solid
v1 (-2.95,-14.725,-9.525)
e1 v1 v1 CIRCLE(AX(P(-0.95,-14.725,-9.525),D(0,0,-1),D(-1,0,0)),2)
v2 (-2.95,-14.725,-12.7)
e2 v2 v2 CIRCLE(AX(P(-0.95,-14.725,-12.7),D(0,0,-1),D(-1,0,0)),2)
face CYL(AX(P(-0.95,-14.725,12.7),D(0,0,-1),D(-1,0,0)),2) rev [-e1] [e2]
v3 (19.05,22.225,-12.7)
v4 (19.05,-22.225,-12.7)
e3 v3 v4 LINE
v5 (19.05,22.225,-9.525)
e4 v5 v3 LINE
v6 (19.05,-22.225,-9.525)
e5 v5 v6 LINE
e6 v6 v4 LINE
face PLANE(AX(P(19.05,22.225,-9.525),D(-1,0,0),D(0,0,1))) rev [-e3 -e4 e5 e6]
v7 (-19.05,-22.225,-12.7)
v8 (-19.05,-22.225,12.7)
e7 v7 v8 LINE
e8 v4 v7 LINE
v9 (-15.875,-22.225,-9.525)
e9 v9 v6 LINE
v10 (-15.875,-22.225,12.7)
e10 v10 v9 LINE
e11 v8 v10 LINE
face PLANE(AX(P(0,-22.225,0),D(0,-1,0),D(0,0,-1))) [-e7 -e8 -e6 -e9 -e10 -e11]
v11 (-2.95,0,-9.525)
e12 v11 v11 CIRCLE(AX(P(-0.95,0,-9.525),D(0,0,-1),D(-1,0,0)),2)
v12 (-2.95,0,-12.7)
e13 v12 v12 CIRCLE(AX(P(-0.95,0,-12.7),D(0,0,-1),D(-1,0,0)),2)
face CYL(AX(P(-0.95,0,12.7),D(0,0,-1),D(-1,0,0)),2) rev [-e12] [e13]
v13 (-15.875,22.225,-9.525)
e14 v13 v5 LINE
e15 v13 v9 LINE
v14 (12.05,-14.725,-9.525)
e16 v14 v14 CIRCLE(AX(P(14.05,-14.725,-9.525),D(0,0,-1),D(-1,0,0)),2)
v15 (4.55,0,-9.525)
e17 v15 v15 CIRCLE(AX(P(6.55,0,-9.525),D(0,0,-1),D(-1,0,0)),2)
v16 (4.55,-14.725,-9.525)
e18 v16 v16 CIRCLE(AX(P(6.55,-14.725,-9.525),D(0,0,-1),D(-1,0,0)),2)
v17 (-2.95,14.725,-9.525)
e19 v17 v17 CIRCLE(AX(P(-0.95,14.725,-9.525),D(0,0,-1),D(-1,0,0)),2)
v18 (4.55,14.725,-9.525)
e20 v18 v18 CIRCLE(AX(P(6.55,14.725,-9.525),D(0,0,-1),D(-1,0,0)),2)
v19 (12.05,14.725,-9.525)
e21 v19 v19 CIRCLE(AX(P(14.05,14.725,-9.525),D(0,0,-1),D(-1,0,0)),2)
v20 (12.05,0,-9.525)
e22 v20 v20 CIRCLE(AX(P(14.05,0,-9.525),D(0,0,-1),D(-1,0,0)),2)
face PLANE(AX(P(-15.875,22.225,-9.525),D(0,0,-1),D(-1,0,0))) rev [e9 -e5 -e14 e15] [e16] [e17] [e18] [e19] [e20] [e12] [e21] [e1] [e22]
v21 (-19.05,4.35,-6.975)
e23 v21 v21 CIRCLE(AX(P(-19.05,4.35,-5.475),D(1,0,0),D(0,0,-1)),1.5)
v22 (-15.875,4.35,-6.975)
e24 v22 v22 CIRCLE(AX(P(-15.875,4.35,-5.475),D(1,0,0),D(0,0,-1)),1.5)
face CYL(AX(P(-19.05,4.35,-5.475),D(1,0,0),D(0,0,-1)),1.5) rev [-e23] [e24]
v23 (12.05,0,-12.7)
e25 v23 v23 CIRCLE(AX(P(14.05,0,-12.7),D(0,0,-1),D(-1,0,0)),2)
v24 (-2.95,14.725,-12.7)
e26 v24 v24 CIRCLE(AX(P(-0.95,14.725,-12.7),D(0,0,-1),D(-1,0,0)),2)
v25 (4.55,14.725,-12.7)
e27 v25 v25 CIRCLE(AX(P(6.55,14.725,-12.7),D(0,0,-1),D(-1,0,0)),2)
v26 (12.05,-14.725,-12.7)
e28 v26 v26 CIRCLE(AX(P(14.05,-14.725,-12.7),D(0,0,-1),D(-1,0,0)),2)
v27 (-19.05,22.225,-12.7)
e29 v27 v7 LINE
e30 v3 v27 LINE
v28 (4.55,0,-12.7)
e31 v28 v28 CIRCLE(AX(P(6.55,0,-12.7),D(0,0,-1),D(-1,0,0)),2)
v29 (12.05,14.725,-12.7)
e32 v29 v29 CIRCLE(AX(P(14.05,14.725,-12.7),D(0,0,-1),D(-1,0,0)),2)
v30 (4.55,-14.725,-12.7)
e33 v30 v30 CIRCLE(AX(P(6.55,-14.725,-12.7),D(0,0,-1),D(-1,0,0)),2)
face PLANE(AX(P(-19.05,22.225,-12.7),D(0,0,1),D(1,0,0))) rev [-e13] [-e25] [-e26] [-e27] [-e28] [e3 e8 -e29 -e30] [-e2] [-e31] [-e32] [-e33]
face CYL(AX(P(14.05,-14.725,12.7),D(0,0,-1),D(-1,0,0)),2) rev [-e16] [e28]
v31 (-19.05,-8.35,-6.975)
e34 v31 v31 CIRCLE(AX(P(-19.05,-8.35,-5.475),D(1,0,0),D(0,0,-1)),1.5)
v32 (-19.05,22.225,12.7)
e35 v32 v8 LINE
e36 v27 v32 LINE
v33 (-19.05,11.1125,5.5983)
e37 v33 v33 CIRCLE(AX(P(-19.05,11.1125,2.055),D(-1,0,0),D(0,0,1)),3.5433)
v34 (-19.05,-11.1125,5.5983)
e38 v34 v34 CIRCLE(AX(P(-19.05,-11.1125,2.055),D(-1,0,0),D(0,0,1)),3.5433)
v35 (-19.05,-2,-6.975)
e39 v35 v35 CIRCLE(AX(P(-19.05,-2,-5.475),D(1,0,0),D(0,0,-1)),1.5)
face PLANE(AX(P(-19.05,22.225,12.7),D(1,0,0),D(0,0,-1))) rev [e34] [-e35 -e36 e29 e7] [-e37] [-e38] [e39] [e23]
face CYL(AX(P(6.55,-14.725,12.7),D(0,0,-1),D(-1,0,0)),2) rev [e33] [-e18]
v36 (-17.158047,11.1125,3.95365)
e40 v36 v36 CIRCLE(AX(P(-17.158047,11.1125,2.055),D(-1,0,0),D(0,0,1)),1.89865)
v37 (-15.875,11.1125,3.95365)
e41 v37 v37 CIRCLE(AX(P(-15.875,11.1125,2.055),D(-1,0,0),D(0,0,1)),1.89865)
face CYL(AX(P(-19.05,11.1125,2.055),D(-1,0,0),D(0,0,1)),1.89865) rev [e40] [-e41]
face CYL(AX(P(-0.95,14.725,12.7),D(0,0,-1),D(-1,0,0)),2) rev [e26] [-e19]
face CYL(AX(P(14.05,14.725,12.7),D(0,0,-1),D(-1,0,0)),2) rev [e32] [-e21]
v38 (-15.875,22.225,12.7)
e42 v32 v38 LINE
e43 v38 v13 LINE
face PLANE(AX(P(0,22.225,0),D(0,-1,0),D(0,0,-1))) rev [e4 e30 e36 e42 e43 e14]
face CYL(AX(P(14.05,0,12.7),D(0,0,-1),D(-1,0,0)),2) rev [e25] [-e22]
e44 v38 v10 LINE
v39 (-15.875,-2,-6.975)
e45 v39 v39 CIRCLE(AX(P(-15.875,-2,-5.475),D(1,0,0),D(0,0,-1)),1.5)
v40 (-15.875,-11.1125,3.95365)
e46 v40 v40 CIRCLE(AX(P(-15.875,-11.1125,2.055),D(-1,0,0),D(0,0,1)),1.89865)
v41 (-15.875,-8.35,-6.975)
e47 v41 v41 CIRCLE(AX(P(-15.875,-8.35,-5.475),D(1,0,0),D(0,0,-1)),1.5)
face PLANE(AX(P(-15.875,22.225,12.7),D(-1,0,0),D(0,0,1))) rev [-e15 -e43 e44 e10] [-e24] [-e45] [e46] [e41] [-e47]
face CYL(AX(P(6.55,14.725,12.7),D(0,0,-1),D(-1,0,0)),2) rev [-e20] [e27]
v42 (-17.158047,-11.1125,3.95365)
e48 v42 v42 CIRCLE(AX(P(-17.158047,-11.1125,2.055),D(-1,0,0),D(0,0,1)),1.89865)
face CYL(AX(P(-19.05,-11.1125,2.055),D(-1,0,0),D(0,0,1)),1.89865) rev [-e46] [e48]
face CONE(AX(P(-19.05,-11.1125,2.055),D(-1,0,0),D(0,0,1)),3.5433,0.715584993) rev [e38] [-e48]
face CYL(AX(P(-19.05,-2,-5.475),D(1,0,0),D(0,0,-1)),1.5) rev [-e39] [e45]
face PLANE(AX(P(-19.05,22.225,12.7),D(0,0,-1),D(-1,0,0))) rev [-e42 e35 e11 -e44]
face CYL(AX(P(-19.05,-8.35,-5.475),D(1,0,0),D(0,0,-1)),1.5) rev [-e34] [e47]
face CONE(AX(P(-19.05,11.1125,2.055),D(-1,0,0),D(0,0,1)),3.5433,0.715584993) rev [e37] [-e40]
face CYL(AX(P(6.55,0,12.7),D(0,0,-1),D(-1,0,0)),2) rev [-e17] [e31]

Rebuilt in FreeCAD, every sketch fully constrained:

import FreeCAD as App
import Part
import Sketcher
Q = App.Units.Quantity


def add_polygon(sketch, points):
    """Adds a closed chain of lines whose ends are joined by coincident constraints."""
    first, n = sketch.GeometryCount, len(points)
    for a, b in zip(points, points[1:] + points[:1]):
        sketch.addGeometry(Part.LineSegment(App.Vector(*a, 0), App.Vector(*b, 0)), False)
    for i in range(n):
        sketch.addConstraint(Sketcher.Constraint("Coincident", first + i, 2, first + (i + 1) % n, 1))

doc = App.newDocument("Part")
body = doc.addObject("PartDesign::Body", "Body")

sketch1 = doc.addObject("Sketcher::SketchObject", "Sketch")
body.addObject(sketch1)
sketch1.AttachmentSupport = (doc.XZ_Plane, [""])
sketch1.MapMode = "FlatFace"
add_polygon(sketch1, [(-19.05, 12.7), (-15.875, 12.7), (-15.875, -9.525), (19.05, -9.525), (19.05, -12.7), (-19.05, -12.7)])
sketch1.addConstraint(Sketcher.Constraint("Horizontal", 0))
sketch1.addConstraint(Sketcher.Constraint("Vertical", 1))
sketch1.addConstraint(Sketcher.Constraint("Horizontal", 2))
sketch1.addConstraint(Sketcher.Constraint("Vertical", 3))
sketch1.addConstraint(Sketcher.Constraint("Horizontal", 4))
sketch1.addConstraint(Sketcher.Constraint("Vertical", 5))
sketch1.addConstraint(Sketcher.Constraint("Symmetric", 3, 2, 5, 2, -1, 1))
sketch1.addConstraint(Sketcher.Constraint("Equal", 0, 3))
sketch1.addConstraint(Sketcher.Constraint("DistanceY", 5, 1, 5, 2, Q("1 in")))
sketch1.addConstraint(Sketcher.Constraint("DistanceX", 4, 2, 4, 1, Q("1.5 in")))
sketch1.addConstraint(Sketcher.Constraint("DistanceX", 0, 1, 0, 2, Q("0.125 in")))
pad1 = doc.addObject("PartDesign::Pad", "Pad")
body.addObject(pad1)
pad1.Profile = sketch1
pad1.Length = Q("1.75 in")
pad1.Midplane = True

sketch2 = doc.addObject("Sketcher::SketchObject", "Sketch001")
body.addObject(sketch2)
sketch2.AttachmentSupport = (doc.YZ_Plane, [""])
sketch2.MapMode = "FlatFace"
sketch2.AttachmentOffset = App.Placement(App.Vector(0, 0, -0.75 * 25.4), App.Rotation())
sketch2.addGeometry(Part.Circle(App.Vector(11.1125, 2.055, 0), App.Vector(0, 0, 1), 1.89865), False)
sketch2.addConstraint(Sketcher.Constraint("Diameter", 0, Q("0.1495 in")))
sketch2.addConstraint(Sketcher.Constraint("DistanceX", -1, 1, 0, 3, Q("0.4375 in")))
sketch2.addConstraint(Sketcher.Constraint("DistanceY", -1, 1, 0, 3, 2.055))
doc.recompute()
hole = doc.addObject("PartDesign::Hole", "Hole")
body.addObject(hole)
hole.Profile = sketch2
hole.ThreadType = "None"
hole.Diameter = Q("0.1495 in")
hole.DepthType = "ThroughAll"
hole.HoleCutType = "Countersink"
hole.HoleCutDiameter = Q("0.279 in")
hole.HoleCutCountersinkAngle = 82
hole.Reversed = True

sketch3 = doc.addObject("Sketcher::SketchObject", "Sketch002")
body.addObject(sketch3)
sketch3.AttachmentSupport = (doc.XY_Plane, [""])
sketch3.MapMode = "FlatFace"
sketch3.AttachmentOffset = App.Placement(App.Vector(0, 0, -0.5 * 25.4), App.Rotation())
sketch3.addGeometry(Part.Circle(App.Vector(14.05, -14.725, 0), App.Vector(0, 0, 1), 2), False)
sketch3.addGeometry(Part.Circle(App.Vector(6.55, -14.725, 0), App.Vector(0, 0, 1), 2), False)
sketch3.addGeometry(Part.Circle(App.Vector(6.55, 0, 0), App.Vector(0, 0, 1), 2), False)
sketch3.addGeometry(Part.Circle(App.Vector(6.55, 14.725, 0), App.Vector(0, 0, 1), 2), False)
sketch3.addGeometry(Part.Circle(App.Vector(14.05, 0, 0), App.Vector(0, 0, 1), 2), False)
sketch3.addGeometry(Part.Circle(App.Vector(14.05, 14.725, 0), App.Vector(0, 0, 1), 2), False)
sketch3.addGeometry(Part.Circle(App.Vector(-0.95, -14.725, 0), App.Vector(0, 0, 1), 2), False)
sketch3.addGeometry(Part.Circle(App.Vector(-0.95, 0, 0), App.Vector(0, 0, 1), 2), False)
sketch3.addGeometry(Part.Circle(App.Vector(-0.95, 14.725, 0), App.Vector(0, 0, 1), 2), False)
sketch3.addConstraint(Sketcher.Constraint("Equal", 0, 1))
sketch3.addConstraint(Sketcher.Constraint("Equal", 1, 2))
sketch3.addConstraint(Sketcher.Constraint("Equal", 2, 3))
sketch3.addConstraint(Sketcher.Constraint("Equal", 3, 4))
sketch3.addConstraint(Sketcher.Constraint("Equal", 4, 5))
sketch3.addConstraint(Sketcher.Constraint("Equal", 5, 6))
sketch3.addConstraint(Sketcher.Constraint("Equal", 6, 7))
sketch3.addConstraint(Sketcher.Constraint("Equal", 7, 8))
sketch3.addConstraint(Sketcher.Constraint("Symmetric", 1, 3, 3, 3, -1))
sketch3.addConstraint(Sketcher.Constraint("Symmetric", 0, 3, 5, 3, -1))
sketch3.addConstraint(Sketcher.Constraint("Symmetric", 6, 3, 8, 3, -1))
sketch3.addConstraint(Sketcher.Constraint("PointOnObject", 2, 3, -1))
sketch3.addConstraint(Sketcher.Constraint("PointOnObject", 4, 3, -1))
sketch3.addConstraint(Sketcher.Constraint("PointOnObject", 7, 3, -1))
sketch3.addConstraint(Sketcher.Constraint("Horizontal", 0, 3, 1, 3))
sketch3.addConstraint(Sketcher.Constraint("Horizontal", 1, 3, 6, 3))
sketch3.addConstraint(Sketcher.Constraint("Vertical", 1, 3, 2, 3))
sketch3.addConstraint(Sketcher.Constraint("Vertical", 0, 3, 4, 3))
sketch3.addConstraint(Sketcher.Constraint("Vertical", 6, 3, 7, 3))
sketch3.addConstraint(Sketcher.Constraint("Diameter", 0, 4.0))
sketch3.addConstraint(Sketcher.Constraint("DistanceX", -1, 1, 0, 3, 14.05))
sketch3.addConstraint(Sketcher.Constraint("DistanceY", 0, 3, -1, 1, 14.725))
sketch3.addConstraint(Sketcher.Constraint("DistanceX", -1, 1, 1, 3, 6.55))
sketch3.addConstraint(Sketcher.Constraint("DistanceX", 6, 3, -1, 1, 0.95))
pocket1 = doc.addObject("PartDesign::Pocket", "Pocket")
body.addObject(pocket1)
pocket1.Profile = sketch3
pocket1.Type = "ThroughAll"
pocket1.Reversed = True
doc.recompute()

mirrored = doc.addObject("PartDesign::Mirrored", "Mirrored")
body.addObject(mirrored)
mirrored.Originals = [hole]
mirrored.MirrorPlane = (doc.XZ_Plane, [""])
body.Tip = mirrored

sketch4 = doc.addObject("Sketcher::SketchObject", "Sketch003")
body.addObject(sketch4)
sketch4.AttachmentSupport = (doc.YZ_Plane, [""])
sketch4.MapMode = "FlatFace"
sketch4.AttachmentOffset = App.Placement(App.Vector(0, 0, -0.625 * 25.4), App.Rotation())
sketch4.addGeometry(Part.Circle(App.Vector(-2, -5.475, 0), App.Vector(0, 0, 1), 1.5), False)
sketch4.addGeometry(Part.Circle(App.Vector(-8.35, -5.475, 0), App.Vector(0, 0, 1), 1.5), False)
sketch4.addGeometry(Part.Circle(App.Vector(4.35, -5.475, 0), App.Vector(0, 0, 1), 1.5), False)
sketch4.addConstraint(Sketcher.Constraint("Equal", 0, 1))
sketch4.addConstraint(Sketcher.Constraint("Equal", 1, 2))
sketch4.addConstraint(Sketcher.Constraint("Horizontal", 0, 3, 1, 3))
sketch4.addConstraint(Sketcher.Constraint("Horizontal", 1, 3, 2, 3))
sketch4.addConstraint(Sketcher.Constraint("DistanceX", 1, 3, 2, 3, Q("0.5 in")))
sketch4.addConstraint(Sketcher.Constraint("Diameter", 0, 3.0))
sketch4.addConstraint(Sketcher.Constraint("DistanceX", 1, 3, 0, 3, Q("0.25 in")))
sketch4.addConstraint(Sketcher.Constraint("DistanceX", 0, 3, -1, 1, 2.0))
sketch4.addConstraint(Sketcher.Constraint("DistanceY", 0, 3, -1, 1, 5.475))
pocket2 = doc.addObject("PartDesign::Pocket", "Pocket001")
body.addObject(pocket2)
pocket2.Profile = sketch4
pocket2.Type = "ThroughAll"

doc.recompute()
